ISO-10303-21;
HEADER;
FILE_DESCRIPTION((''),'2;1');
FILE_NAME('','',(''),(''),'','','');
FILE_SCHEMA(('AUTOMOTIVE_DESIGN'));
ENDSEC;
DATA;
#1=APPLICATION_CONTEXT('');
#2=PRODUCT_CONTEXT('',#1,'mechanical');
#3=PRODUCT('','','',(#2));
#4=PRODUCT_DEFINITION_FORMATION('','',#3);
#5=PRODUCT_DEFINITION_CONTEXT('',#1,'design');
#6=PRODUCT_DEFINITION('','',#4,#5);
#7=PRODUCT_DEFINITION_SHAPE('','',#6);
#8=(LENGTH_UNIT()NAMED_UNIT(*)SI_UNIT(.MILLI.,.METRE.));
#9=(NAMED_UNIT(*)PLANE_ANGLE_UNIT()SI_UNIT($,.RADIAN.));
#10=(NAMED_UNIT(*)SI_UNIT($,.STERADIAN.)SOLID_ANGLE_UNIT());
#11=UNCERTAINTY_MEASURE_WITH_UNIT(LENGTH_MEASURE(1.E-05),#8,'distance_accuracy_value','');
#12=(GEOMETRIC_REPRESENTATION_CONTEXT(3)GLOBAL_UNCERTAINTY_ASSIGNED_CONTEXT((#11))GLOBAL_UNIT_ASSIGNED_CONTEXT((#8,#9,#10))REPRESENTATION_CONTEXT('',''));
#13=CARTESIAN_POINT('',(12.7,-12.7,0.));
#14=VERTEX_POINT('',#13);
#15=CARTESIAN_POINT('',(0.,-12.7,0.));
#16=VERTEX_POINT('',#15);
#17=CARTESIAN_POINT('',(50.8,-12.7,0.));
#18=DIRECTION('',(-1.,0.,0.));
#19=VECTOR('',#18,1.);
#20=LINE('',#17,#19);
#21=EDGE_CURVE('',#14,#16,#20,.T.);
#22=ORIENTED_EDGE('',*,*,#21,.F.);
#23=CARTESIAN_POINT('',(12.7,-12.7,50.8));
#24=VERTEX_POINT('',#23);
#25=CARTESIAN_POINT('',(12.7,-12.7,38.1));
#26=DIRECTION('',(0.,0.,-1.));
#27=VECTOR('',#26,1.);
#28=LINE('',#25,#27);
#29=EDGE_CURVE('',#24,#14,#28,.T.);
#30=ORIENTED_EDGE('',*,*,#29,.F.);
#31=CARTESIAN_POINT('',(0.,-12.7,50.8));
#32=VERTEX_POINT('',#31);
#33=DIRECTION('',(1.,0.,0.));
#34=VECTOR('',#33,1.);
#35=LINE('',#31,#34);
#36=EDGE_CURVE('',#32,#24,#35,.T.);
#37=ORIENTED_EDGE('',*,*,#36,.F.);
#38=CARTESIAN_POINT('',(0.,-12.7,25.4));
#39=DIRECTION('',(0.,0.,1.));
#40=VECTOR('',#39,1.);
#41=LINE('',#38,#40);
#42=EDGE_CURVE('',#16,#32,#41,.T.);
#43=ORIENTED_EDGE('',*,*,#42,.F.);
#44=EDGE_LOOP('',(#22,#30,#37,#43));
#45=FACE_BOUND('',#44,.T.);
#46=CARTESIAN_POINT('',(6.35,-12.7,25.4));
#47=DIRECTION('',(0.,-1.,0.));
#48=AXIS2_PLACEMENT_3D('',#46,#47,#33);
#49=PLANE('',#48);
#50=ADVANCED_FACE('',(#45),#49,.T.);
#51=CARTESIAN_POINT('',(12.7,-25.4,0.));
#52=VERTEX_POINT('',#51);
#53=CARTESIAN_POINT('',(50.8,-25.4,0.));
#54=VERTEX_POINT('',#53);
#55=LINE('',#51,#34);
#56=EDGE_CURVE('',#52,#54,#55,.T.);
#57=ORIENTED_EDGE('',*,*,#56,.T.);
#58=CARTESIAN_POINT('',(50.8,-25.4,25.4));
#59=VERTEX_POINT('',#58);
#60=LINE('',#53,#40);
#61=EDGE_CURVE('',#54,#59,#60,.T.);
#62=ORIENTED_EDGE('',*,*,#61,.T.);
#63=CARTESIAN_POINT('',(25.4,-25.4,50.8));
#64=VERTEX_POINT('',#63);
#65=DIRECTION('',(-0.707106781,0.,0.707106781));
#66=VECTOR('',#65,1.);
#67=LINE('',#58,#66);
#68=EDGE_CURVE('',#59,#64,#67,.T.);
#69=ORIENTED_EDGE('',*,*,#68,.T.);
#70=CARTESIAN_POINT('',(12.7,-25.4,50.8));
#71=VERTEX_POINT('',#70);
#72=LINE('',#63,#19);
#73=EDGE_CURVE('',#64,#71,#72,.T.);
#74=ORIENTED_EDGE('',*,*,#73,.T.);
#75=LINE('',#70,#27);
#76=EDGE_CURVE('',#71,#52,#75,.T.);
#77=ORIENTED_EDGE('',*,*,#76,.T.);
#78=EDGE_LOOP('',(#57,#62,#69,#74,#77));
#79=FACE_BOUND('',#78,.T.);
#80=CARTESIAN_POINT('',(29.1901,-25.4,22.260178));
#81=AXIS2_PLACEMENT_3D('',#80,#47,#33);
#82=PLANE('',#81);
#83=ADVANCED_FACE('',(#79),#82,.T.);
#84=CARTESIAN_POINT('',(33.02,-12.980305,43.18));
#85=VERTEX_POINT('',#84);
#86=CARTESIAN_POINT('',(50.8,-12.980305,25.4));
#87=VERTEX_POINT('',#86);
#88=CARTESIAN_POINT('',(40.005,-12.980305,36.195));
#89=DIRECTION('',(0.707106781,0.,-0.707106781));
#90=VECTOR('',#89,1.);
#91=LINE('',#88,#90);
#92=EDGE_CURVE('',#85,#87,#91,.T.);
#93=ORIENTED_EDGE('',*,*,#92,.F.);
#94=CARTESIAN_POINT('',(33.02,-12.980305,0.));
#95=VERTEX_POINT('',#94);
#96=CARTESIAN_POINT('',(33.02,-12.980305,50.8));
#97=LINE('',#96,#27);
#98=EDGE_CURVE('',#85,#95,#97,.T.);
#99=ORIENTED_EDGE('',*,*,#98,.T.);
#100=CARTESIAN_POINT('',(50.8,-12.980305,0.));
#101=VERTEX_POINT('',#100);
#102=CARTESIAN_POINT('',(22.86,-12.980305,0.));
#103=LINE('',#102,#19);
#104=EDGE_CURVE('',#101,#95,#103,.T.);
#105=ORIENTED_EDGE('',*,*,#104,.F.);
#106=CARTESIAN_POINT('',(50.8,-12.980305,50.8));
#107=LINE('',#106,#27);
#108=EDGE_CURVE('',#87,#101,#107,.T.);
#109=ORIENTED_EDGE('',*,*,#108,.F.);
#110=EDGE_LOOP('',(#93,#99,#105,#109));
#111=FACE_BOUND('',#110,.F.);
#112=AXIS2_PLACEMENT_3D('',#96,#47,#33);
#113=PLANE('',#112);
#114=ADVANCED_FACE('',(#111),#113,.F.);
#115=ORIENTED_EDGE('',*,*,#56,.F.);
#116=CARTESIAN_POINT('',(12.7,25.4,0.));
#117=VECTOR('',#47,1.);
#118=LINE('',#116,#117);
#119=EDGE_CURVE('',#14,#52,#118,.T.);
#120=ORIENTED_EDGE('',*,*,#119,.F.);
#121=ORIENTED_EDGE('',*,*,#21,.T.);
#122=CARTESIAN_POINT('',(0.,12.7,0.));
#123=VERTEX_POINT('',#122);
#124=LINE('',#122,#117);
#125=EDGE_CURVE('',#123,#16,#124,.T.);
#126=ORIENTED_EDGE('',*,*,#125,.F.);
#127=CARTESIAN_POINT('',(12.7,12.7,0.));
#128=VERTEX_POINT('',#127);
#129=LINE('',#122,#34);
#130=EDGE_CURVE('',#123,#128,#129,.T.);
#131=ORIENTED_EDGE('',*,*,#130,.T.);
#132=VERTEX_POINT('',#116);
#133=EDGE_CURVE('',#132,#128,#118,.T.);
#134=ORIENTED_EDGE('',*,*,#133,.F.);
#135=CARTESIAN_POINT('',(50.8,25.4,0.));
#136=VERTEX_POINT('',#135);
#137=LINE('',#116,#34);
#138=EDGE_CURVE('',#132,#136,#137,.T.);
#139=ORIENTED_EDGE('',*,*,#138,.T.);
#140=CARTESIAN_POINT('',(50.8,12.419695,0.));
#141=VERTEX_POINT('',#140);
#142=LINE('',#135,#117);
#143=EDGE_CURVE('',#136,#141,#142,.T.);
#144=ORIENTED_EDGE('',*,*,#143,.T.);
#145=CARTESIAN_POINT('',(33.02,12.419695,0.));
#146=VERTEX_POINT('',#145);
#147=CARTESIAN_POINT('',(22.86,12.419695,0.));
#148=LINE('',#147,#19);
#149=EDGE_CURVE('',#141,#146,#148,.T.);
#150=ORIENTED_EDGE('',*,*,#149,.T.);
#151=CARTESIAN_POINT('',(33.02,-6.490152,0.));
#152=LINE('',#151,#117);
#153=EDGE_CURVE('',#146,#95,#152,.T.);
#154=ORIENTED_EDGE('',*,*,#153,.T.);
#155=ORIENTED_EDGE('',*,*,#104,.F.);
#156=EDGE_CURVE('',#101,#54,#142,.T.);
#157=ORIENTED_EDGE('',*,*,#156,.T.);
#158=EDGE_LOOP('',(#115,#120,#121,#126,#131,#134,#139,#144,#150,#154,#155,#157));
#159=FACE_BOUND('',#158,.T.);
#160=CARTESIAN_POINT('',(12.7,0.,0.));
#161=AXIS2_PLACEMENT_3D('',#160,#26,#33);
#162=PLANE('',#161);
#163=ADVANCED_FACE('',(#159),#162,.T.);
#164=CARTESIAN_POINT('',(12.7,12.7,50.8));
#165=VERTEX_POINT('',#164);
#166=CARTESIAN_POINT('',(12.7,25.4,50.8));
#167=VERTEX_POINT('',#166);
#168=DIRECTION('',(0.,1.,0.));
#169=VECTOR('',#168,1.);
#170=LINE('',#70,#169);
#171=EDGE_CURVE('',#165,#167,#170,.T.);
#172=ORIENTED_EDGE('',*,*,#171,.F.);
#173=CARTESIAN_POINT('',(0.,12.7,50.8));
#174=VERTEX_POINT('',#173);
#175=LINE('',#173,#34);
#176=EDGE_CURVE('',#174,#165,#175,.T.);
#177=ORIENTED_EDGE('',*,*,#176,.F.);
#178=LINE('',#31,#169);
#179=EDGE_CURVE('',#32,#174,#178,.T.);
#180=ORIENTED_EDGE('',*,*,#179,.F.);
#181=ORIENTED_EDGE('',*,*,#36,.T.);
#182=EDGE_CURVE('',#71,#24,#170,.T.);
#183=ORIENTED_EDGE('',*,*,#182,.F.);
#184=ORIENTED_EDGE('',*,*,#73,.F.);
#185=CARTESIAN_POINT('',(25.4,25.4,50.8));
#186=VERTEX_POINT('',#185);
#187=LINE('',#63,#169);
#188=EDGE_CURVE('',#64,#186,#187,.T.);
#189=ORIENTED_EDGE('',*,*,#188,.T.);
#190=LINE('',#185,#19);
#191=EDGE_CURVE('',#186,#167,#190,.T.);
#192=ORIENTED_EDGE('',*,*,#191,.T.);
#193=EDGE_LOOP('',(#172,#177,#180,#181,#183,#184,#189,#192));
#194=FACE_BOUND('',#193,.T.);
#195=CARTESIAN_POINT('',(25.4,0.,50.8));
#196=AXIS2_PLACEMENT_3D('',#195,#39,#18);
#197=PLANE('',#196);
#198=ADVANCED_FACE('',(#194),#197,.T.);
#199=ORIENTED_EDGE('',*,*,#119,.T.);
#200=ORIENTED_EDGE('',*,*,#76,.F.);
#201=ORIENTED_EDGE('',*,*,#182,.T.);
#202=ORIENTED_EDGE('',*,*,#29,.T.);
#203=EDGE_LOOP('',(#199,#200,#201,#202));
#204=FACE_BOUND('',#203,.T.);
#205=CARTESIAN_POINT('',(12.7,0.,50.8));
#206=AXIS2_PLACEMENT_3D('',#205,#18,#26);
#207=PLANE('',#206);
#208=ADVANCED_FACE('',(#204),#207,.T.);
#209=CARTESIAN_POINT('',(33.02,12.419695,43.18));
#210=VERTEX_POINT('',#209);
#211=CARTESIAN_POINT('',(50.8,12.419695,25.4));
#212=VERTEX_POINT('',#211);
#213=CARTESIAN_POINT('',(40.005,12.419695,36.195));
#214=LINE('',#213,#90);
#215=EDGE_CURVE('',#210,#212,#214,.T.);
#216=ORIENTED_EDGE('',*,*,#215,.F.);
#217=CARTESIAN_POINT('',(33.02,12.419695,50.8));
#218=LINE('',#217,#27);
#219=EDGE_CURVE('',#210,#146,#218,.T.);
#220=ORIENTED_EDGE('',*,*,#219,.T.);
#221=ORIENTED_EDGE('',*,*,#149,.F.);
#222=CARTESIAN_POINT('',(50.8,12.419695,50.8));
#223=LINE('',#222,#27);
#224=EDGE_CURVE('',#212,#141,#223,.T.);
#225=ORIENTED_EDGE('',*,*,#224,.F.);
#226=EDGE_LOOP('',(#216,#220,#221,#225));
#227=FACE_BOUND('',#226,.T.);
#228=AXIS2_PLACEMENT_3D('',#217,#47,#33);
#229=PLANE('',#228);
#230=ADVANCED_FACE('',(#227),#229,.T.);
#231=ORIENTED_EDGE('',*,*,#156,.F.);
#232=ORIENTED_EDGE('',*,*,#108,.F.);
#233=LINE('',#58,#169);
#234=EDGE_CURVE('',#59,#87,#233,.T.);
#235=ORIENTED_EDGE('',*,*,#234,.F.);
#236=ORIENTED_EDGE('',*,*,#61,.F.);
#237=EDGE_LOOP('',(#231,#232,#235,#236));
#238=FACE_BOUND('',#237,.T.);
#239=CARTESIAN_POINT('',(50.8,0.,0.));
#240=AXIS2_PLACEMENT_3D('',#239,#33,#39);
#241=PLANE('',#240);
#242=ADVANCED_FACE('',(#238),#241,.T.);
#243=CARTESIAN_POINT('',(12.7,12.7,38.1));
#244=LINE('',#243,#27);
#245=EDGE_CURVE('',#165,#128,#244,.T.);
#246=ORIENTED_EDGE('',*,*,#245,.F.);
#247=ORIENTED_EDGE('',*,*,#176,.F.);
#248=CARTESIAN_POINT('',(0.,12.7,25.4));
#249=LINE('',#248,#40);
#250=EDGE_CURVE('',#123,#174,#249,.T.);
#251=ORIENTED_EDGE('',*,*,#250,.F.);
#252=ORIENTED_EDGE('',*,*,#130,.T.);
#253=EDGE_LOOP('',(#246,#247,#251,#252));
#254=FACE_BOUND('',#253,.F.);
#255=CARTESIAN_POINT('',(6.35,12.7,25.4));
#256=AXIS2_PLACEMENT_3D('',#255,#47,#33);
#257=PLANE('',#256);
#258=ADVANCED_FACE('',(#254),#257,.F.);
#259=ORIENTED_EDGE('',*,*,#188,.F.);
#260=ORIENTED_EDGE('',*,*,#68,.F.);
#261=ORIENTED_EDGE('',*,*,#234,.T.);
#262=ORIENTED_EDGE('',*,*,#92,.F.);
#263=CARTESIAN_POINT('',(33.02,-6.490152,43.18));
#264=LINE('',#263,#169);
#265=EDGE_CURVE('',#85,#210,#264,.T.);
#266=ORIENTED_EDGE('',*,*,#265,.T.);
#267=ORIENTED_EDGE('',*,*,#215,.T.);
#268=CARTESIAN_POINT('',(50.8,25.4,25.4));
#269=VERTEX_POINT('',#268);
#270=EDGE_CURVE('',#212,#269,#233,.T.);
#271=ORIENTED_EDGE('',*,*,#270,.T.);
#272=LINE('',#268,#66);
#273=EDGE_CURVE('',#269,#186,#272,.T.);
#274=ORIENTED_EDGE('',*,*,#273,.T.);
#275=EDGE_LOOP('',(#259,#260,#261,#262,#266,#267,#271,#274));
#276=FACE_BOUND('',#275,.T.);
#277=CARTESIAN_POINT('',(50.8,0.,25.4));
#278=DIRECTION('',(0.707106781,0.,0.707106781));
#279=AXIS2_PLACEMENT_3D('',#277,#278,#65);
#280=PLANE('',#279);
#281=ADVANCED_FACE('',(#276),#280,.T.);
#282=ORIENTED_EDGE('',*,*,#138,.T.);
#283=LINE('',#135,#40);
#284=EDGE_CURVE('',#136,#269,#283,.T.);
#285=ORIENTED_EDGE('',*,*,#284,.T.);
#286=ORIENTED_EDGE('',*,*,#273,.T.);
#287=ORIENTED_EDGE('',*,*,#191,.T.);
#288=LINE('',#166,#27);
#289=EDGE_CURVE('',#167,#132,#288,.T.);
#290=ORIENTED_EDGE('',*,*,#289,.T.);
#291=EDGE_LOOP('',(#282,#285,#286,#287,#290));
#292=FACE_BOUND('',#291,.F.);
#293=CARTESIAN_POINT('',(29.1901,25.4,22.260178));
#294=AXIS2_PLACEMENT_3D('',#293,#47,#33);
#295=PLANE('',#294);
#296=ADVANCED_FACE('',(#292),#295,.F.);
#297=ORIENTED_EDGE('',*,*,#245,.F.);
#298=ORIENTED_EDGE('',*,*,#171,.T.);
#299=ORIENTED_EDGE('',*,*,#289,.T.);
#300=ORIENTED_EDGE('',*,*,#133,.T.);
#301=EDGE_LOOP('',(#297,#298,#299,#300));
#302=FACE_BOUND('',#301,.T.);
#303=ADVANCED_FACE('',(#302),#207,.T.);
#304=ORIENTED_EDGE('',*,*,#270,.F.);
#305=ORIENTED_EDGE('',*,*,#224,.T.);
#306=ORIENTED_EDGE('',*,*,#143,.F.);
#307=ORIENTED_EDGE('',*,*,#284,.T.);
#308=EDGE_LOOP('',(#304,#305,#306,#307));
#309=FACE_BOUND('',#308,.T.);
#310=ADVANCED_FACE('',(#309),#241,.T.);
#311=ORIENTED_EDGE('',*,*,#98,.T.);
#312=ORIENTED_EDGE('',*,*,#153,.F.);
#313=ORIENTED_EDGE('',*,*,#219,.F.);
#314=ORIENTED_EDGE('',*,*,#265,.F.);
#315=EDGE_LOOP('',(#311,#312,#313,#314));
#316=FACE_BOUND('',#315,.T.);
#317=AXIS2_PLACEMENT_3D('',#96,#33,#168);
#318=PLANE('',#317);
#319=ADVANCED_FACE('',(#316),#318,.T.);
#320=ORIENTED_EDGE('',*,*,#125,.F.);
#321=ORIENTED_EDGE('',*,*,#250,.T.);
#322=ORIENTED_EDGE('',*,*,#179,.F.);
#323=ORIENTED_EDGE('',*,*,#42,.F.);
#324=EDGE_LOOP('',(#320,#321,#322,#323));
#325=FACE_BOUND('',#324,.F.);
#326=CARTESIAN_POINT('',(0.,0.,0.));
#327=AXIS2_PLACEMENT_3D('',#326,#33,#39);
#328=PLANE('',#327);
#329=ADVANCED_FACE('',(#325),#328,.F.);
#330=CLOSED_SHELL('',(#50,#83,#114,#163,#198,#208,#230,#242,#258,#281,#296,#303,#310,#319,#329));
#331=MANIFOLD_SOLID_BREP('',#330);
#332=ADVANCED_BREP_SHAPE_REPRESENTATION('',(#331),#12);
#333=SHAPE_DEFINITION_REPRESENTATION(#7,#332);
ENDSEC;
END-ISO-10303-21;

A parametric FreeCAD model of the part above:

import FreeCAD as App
import Part
import Sketcher

V = App.Vector
Q = App.Units.Quantity


def add_polygon(sketch, points):
    """Adds a closed chain of lines whose ends are joined by coincident constraints."""
    first, n = sketch.GeometryCount, len(points)
    for a, b in zip(points, points[1:] + points[:1]):
        sketch.addGeometry(Part.LineSegment(App.Vector(*a, 0), App.Vector(*b, 0)), False)
    for i in range(n):
        sketch.addConstraint(Sketcher.Constraint("Coincident", first + i, 2, first + (i + 1) % n, 1))

doc = App.newDocument("Part")
body = doc.addObject("PartDesign::Body", "Body")

# Sketch on XZ plane
sketch1 = body.newObject("Sketcher::SketchObject", "Sketch")
sketch1.AttachmentSupport = (doc.getObject("XZ_Plane"), [""])
sketch1.MapMode = "FlatFace"
add_polygon(sketch1, [(0, 51), (0, 0), (13, 0), (13, 51)])  # lines 0-3
sketch1.addConstraint([
    Sketcher.Constraint("Vertical", 0),
    Sketcher.Constraint("Horizontal", 1),
    Sketcher.Constraint("Vertical", 2),
    Sketcher.Constraint("Horizontal", 3),
    Sketcher.Constraint("Coincident", 0, 2, -1, 1),
    Sketcher.Constraint("DistanceY", 0, 2, 0, 1, Q("2 in")),
    Sketcher.Constraint("DistanceX", 1, 1, 1, 2, Q("0.5 in")),
])
pad1 = body.newObject("PartDesign::Pad", "Pad")
pad1.Profile = sketch1
pad1.Length = Q("1 in")
pad1.Midplane = True

# Sketch on XZ plane
sketch2 = body.newObject("Sketcher::SketchObject", "Sketch001")
sketch2.AttachmentSupport = (doc.getObject("XZ_Plane"), [""])
sketch2.MapMode = "FlatFace"
add_polygon(sketch2, [(0, 51), (0, 0), (51, 0), (51, 25), (25, 51)])  # lines 0-4
sketch2.addConstraint([
    Sketcher.Constraint("Vertical", 0),
    Sketcher.Constraint("Horizontal", 1),
    Sketcher.Constraint("Vertical", 2),
    Sketcher.Constraint("Horizontal", 4),
    Sketcher.Constraint("Coincident", 0, 2, -1, 1),
    Sketcher.Constraint("Equal", 1, 0),
    Sketcher.Constraint("Equal", 4, 2),
    Sketcher.Constraint("DistanceX", 1, 1, 1, 2, Q("2 in")),
    Sketcher.Constraint("DistanceX", 4, 2, 4, 1, Q("1 in")),
])
pad2 = body.newObject("PartDesign::Pad", "Pad001")
pad2.Profile = sketch2
pad2.Length = Q("1 in")
pad2.Midplane = True

# Sketch on XZ plane
sketch3 = body.newObject("Sketcher::SketchObject", "Sketch002")
sketch3.AttachmentSupport = (doc.getObject("XZ_Plane"), [""])
sketch3.MapMode = "FlatFace"
add_polygon(sketch3, [(13, 51), (13, 0), (51, 0), (51, 25), (25, 51)])  # lines 0-4
sketch3.addConstraint([
    Sketcher.Constraint("Vertical", 0),
    Sketcher.Constraint("Horizontal", 1),
    Sketcher.Constraint("Vertical", 2),
    Sketcher.Constraint("Horizontal", 4),
    Sketcher.Constraint("PointOnObject", 0, 2, -1),
    Sketcher.Constraint("DistanceY", 0, 2, 0, 1, Q("2 in")),
    Sketcher.Constraint("DistanceY", 2, 1, 2, 2, Q("1 in")),
    Sketcher.Constraint("DistanceX", 1, 1, 1, 2, Q("1.5 in")),
    Sketcher.Constraint("DistanceX", 4, 2, 4, 1, Q("0.5 in")),
    Sketcher.Constraint("DistanceX", -1, 1, 1, 2, Q("2 in")),
])
pad3 = body.newObject("PartDesign::Pad", "Pad002")
pad3.Profile = sketch3
pad3.Length = Q("2 in")
pad3.Midplane = True

# Sketch on XY plane
sketch4 = body.newObject("Sketcher::SketchObject", "Sketch003")
sketch4.AttachmentSupport = (doc.getObject("XY_Plane"), [""])
sketch4.MapMode = "FlatFace"
sketch4.AttachmentOffset = App.Placement(V(0, 0, 2 * 25.4), App.Rotation())
add_polygon(sketch4, [(33, 12), (33, -13), (51, -13), (51, 12)])  # lines 0-3
sketch4.addConstraint([
    Sketcher.Constraint("Vertical", 0),
    Sketcher.Constraint("Horizontal", 1),
    Sketcher.Constraint("Vertical", 2),
    Sketcher.Constraint("Horizontal", 3),
    Sketcher.Constraint("DistanceY", 0, 2, 0, 1, Q("1 in")),
    Sketcher.Constraint("DistanceX", 1, 1, 1, 2, Q("0.7 in")),
    Sketcher.Constraint("DistanceX", -1, 1, 1, 2, Q("2 in")),
    Sketcher.Constraint("DistanceY", 0, 2, -1, 1, 12.980305),
])
pocket1 = body.newObject("PartDesign::Pocket", "Pocket")
pocket1.Profile = sketch4
pocket1.Type = "ThroughAll"

doc.recompute()
